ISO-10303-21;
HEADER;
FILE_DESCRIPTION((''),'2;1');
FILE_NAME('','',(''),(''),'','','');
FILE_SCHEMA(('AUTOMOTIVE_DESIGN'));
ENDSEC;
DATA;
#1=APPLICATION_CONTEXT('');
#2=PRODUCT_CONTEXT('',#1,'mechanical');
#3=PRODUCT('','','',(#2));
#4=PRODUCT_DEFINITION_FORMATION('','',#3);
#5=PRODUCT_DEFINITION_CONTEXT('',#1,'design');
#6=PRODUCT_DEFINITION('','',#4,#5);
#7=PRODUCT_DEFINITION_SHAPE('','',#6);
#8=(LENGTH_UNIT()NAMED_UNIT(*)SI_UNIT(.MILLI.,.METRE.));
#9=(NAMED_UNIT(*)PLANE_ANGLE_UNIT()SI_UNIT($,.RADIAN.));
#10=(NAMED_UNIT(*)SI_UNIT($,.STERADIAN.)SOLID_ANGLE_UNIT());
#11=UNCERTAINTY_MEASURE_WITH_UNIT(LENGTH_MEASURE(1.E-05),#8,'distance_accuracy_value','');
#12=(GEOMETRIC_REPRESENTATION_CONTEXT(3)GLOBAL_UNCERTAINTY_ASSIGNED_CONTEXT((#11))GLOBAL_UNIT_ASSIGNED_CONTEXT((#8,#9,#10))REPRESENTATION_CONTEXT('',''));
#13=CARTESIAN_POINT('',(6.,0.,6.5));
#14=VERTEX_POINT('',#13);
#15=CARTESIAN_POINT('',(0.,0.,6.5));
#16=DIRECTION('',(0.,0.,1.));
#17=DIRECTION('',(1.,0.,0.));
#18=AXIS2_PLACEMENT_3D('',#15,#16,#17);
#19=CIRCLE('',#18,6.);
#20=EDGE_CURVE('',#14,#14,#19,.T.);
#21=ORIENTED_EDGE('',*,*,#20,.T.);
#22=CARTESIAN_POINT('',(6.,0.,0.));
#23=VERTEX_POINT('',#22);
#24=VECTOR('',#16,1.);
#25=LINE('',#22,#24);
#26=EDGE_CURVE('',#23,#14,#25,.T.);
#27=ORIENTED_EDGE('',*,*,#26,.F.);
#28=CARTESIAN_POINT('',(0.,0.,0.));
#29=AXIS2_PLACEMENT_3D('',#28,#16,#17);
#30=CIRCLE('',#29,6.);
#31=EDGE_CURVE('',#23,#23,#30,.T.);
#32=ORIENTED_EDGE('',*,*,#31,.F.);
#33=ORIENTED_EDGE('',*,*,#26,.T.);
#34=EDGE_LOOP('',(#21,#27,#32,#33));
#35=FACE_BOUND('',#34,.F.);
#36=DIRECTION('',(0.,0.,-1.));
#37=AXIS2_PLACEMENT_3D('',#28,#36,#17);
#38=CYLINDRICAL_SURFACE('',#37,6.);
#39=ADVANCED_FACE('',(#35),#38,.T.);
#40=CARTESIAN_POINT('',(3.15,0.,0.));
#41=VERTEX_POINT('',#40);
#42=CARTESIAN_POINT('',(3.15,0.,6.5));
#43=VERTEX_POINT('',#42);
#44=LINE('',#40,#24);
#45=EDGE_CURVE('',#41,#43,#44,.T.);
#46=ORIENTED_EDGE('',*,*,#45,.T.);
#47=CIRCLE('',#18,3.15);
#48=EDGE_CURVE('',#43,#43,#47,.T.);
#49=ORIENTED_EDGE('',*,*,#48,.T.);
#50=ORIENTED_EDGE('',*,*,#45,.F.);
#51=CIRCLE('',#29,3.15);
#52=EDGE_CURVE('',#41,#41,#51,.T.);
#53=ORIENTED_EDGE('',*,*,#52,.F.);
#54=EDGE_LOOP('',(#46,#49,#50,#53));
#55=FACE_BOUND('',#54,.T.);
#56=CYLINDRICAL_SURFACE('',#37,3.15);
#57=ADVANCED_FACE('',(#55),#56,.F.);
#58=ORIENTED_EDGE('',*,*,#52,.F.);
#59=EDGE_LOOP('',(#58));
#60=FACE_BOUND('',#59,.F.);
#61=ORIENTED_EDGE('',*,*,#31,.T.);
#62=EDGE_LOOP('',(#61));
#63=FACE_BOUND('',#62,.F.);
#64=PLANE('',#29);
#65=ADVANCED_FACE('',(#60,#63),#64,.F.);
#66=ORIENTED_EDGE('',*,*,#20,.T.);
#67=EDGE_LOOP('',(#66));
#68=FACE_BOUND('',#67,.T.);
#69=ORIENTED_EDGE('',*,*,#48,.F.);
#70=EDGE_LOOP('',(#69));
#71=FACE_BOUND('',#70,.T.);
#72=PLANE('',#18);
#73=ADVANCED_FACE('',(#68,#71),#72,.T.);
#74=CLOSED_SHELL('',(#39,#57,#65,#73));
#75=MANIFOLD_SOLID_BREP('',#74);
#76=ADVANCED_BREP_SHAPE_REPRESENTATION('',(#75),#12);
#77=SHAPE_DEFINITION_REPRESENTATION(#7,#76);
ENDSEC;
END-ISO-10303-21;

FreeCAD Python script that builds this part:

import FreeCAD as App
import Part
import Sketcher
Q = App.Units.Quantity

doc = App.newDocument("Part")
body = doc.addObject("PartDesign::Body", "Body")

sketch1 = body.newObject("Sketcher::SketchObject", "Sketch")
sketch1.AttachmentSupport = (doc.getObject("XY_Plane"), [""])
sketch1.MapMode = "FlatFace"
sketch1.addGeometry(Part.Circle(App.Vector(0, 0, 0), App.Vector(0, 0, 1), 6), False)
sketch1.addGeometry(Part.Circle(App.Vector(0, 0, 0), App.Vector(0, 0, 1), 3.15), False)
sketch1.addConstraint(Sketcher.Constraint("Coincident", 0, 3, -1, 1))
sketch1.addConstraint(Sketcher.Constraint("Coincident", 1, 3, -1, 1))
sketch1.addConstraint(Sketcher.Constraint("Diameter", 0, Q("12 mm")))
sketch1.addConstraint(Sketcher.Constraint("Diameter", 1, Q("6.3 mm")))
pad1 = body.newObject("PartDesign::Pad", "Pad")
pad1.Profile = sketch1
pad1.Length = 6.5

doc.recompute()
